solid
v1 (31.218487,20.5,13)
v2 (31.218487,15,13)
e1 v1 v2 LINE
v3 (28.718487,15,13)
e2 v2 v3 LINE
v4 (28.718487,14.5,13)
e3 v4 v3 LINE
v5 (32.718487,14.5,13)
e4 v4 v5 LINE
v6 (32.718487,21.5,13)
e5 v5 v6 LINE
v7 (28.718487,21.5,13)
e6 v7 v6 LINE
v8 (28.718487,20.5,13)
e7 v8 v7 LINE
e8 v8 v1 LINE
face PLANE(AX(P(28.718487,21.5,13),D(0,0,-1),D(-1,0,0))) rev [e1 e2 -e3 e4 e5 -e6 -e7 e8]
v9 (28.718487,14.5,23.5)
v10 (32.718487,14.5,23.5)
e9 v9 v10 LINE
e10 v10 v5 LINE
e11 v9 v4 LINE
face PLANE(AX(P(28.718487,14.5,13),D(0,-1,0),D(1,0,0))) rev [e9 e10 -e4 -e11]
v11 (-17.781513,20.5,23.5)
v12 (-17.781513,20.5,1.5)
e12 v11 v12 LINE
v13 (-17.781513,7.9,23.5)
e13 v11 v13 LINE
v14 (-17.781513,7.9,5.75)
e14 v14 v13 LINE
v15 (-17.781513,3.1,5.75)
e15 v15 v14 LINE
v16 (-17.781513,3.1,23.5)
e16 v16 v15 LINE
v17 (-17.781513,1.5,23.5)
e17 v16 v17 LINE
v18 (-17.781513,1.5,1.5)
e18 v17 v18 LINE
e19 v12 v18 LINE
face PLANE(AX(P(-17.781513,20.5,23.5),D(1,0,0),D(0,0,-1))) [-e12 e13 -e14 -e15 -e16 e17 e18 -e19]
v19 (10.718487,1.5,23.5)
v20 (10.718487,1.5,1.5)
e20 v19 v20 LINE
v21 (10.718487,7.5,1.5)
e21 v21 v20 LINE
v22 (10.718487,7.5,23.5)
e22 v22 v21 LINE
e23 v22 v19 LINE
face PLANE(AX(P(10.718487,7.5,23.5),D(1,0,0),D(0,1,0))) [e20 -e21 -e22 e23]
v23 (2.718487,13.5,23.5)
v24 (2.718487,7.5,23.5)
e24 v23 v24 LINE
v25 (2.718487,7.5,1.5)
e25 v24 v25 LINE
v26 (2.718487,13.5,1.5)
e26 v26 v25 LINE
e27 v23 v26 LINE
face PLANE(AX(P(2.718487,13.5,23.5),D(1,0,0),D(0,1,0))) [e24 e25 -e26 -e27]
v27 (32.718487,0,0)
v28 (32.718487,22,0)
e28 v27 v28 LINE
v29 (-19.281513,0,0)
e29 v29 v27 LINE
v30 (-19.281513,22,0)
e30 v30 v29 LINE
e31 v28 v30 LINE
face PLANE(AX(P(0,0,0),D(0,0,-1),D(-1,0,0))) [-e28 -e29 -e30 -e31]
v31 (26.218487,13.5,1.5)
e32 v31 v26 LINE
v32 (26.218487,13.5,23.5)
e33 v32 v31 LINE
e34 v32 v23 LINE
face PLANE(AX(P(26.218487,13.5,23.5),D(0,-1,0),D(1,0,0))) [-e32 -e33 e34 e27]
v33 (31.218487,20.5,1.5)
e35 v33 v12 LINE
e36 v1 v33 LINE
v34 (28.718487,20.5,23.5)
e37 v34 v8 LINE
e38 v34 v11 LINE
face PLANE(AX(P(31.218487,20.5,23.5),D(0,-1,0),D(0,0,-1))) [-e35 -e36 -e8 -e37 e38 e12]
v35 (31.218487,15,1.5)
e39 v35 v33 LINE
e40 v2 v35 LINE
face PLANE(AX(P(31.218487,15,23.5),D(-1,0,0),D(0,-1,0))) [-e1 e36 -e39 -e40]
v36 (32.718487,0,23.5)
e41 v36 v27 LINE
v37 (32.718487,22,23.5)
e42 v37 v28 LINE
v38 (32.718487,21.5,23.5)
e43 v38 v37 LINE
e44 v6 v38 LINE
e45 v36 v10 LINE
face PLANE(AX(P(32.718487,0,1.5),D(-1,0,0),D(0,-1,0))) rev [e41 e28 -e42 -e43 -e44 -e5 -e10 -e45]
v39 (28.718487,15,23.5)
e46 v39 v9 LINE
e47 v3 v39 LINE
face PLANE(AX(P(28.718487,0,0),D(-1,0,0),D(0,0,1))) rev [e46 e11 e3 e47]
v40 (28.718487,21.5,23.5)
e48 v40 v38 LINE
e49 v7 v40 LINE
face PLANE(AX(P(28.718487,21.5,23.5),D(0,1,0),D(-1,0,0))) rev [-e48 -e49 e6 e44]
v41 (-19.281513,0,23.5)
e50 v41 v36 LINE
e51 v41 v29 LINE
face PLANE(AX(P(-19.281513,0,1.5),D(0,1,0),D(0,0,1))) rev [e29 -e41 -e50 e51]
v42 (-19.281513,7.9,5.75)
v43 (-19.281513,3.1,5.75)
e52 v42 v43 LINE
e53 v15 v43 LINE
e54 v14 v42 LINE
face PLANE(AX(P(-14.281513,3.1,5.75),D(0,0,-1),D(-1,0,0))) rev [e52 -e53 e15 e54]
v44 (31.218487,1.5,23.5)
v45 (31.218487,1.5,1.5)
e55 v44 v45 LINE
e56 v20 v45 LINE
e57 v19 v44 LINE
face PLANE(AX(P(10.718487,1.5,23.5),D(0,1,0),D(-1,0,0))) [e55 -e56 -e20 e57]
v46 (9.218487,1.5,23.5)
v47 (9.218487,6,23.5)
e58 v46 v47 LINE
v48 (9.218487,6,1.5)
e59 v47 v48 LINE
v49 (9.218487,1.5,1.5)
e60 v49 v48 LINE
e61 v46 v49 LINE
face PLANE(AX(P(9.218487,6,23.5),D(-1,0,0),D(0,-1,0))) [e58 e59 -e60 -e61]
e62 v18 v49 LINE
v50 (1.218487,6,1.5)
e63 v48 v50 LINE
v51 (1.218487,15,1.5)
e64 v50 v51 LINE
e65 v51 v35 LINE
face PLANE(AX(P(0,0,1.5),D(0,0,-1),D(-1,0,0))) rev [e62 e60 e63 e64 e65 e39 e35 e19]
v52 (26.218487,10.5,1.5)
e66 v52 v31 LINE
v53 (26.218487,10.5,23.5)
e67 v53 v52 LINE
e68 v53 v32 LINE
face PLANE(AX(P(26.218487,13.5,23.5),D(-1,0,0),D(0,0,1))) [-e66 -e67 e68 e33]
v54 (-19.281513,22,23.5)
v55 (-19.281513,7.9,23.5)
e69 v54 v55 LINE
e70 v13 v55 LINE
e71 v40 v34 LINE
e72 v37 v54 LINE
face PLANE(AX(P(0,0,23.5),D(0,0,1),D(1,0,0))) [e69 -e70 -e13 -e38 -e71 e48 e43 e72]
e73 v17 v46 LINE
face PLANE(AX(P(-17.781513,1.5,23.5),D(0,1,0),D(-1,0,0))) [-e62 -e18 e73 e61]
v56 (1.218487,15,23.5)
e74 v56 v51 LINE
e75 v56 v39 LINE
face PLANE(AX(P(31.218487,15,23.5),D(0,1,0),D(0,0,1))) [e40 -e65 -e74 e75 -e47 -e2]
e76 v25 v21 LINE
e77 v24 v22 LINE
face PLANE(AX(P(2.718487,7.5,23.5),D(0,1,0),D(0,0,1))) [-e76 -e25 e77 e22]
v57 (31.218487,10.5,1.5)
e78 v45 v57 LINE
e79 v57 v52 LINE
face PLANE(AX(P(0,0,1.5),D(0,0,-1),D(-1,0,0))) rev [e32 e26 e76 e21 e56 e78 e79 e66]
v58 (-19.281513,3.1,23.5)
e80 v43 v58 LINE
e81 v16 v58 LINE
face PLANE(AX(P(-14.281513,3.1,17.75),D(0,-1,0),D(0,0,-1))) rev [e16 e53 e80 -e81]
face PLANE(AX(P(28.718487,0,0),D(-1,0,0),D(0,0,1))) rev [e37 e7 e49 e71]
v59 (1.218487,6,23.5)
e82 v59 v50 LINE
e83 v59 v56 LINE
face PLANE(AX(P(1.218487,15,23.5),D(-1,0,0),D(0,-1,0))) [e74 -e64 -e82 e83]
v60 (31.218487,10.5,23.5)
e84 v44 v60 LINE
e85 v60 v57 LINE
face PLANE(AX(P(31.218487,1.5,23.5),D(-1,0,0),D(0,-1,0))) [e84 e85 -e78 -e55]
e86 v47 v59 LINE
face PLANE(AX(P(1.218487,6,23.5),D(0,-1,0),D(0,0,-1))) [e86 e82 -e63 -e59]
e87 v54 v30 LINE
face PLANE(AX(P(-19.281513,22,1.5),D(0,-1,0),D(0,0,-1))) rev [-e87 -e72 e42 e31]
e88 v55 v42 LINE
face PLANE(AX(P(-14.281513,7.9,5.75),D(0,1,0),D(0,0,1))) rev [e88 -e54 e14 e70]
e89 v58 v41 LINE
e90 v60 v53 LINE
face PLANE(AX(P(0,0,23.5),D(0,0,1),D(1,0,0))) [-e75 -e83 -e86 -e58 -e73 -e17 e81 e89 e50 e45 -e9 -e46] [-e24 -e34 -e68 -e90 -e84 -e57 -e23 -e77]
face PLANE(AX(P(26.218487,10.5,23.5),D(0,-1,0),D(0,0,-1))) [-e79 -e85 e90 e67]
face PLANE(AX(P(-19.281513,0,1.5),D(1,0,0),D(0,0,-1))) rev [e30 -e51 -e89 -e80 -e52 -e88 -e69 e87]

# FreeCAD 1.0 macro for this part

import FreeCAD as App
import Part
import Sketcher


def add_polygon(sketch, points):
    """Adds a closed chain of lines whose ends are joined by coincident constraints."""
    first, n = sketch.GeometryCount, len(points)
    for a, b in zip(points, points[1:] + points[:1]):
        sketch.addGeometry(Part.LineSegment(App.Vector(*a, 0), App.Vector(*b, 0)), False)
    for i in range(n):
        sketch.addConstraint(Sketcher.Constraint("Coincident", first + i, 2, first + (i + 1) % n, 1))

doc = App.newDocument("Part")
body = doc.addObject("PartDesign::Body", "Body")

# Sketch on XY plane
sketch1 = body.newObject("Sketcher::SketchObject", "Sketch")
sketch1.AttachmentSupport = (doc.getObject("XY_Plane"), [""])
sketch1.MapMode = "FlatFace"
add_polygon(sketch1, [(-19, 22), (-19, 0), (33, 0), (33, 22)])  # lines 0-3
sketch1.addConstraint([
    Sketcher.Constraint("Vertical", 0),
    Sketcher.Constraint("Horizontal", 1),
    Sketcher.Constraint("Vertical", 2),
    Sketcher.Constraint("Horizontal", 3),
    Sketcher.Constraint("PointOnObject", 0, 2, -1),
    Sketcher.Constraint("DistanceX", 1, 1, 1, 2, 52.0),
    Sketcher.Constraint("DistanceY", 0, 2, 0, 1, 22.0),
    Sketcher.Constraint("DistanceX", 0, 2, -1, 1, 19.281513),
])
pad1 = body.newObject("PartDesign::Pad", "Pad")
pad1.Profile = sketch1
pad1.Length = 1.5

# Sketch on XY plane
sketch2 = body.newObject("Sketcher::SketchObject", "Sketch001")
sketch2.AttachmentSupport = (doc.getObject("XY_Plane"), [""])
sketch2.MapMode = "FlatFace"
sketch2.AttachmentOffset = App.Placement(App.Vector(0, 0, 1.5), App.Rotation())
add_polygon(sketch2, [(-19.3, 22), (-19.3, 0), (32.7, 0), (32.7, 22)])  # lines 0-3
add_polygon(sketch2, [(31.2, 10.5), (31.2, 1.5), (10.7, 1.5), (10.7, 7.5), (2.7, 7.5), (2.7, 13.5), (26.2, 13.5), (26.2, 10.5)])  # lines 4-11
add_polygon(sketch2, [(-17.8, 1.5), (-17.8, 20.5), (31.2, 20.5), (31.2, 15), (1.2, 15), (1.2, 6), (9.2, 6), (9.2, 1.5)])  # lines 12-19
sketch2.addConstraint([
    Sketcher.Constraint("Vertical", 0),
    Sketcher.Constraint("Horizontal", 1),
    Sketcher.Constraint("Vertical", 2),
    Sketcher.Constraint("Horizontal", 3),
    Sketcher.Constraint("Vertical", 4),
    Sketcher.Constraint("Horizontal", 5),
    Sketcher.Constraint("Vertical", 6),
    Sketcher.Constraint("Horizontal", 7),
    Sketcher.Constraint("Vertical", 8),
    Sketcher.Constraint("Horizontal", 9),
    Sketcher.Constraint("Vertical", 10),
    Sketcher.Constraint("Horizontal", 11),
    Sketcher.Constraint("Vertical", 12),
    Sketcher.Constraint("Horizontal", 13),
    Sketcher.Constraint("Vertical", 14),
    Sketcher.Constraint("Horizontal", 15),
    Sketcher.Constraint("Vertical", 16),
    Sketcher.Constraint("Horizontal", 17),
    Sketcher.Constraint("Vertical", 18),
    Sketcher.Constraint("Horizontal", 19),
    Sketcher.Constraint("PointOnObject", 0, 2, -1),
    Sketcher.Constraint("Horizontal", 5, 2, 18, 2),
    Sketcher.Constraint("Vertical", 11, 2, 13, 2),
    Sketcher.Constraint("Equal", 7, 17),
    Sketcher.Constraint("Equal", 6, 8),
    Sketcher.Constraint("Equal", 4, 16),
    Sketcher.Constraint("DistanceX", 1, 1, 1, 2, 52.0),
    Sketcher.Constraint("DistanceX", 7, 2, 7, 1, 8.0),
    Sketcher.Constraint("DistanceX", 11, 1, 11, 2, 5.0),
    Sketcher.Constraint("DistanceX", 13, 1, 13, 2, 49.0),
    Sketcher.Constraint("DistanceX", 15, 2, 15, 1, 30.0),
    Sketcher.Constraint("DistanceY", 0, 2, 0, 1, 22.0),
    Sketcher.Constraint("DistanceY", 4, 2, 4, 1, 9.0),
    Sketcher.Constraint("DistanceY", 6, 1, 6, 2, 6.0),
    Sketcher.Constraint("DistanceY", 12, 1, 12, 2, 19.0),
    Sketcher.Constraint("DistanceX", 5, 2, 5, 1, 20.5),
    Sketcher.Constraint("DistanceY", 14, 2, 14, 1, 5.5),
    Sketcher.Constraint("DistanceY", -1, 1, 14, 2, 15.0),
    Sketcher.Constraint("DistanceX", 5, 2, 1, 2, 22.0),
    Sketcher.Constraint("DistanceX", 0, 2, -1, 1, 19.281513),
])
pad2 = body.newObject("PartDesign::Pad", "Pad001")
pad2.Profile = sketch2
pad2.Length = 22

# Sketch on YZ plane
sketch3 = body.newObject("Sketcher::SketchObject", "Sketch002")
sketch3.AttachmentSupport = (doc.getObject("YZ_Plane"), [""])
sketch3.MapMode = "FlatFace"
sketch3.AttachmentOffset = App.Placement(App.Vector(0, 0, -19.281513), App.Rotation())
add_polygon(sketch3, [(3.1, 5.8), (3.1, 23.5), (7.9, 23.5), (7.9, 5.8)])  # lines 0-3
sketch3.addConstraint([
    Sketcher.Constraint("Vertical", 0),
    Sketcher.Constraint("Horizontal", 1),
    Sketcher.Constraint("Vertical", 2),
    Sketcher.Constraint("Horizontal", 3),
    Sketcher.Constraint("DistanceX", 1, 1, 1, 2, 4.8),
    Sketcher.Constraint("DistanceY", 0, 1, 0, 2, 17.75),
    Sketcher.Constraint("DistanceX", -1, 1, 0, 2, 3.1),
    Sketcher.Constraint("DistanceY", -1, 1, 0, 2, 23.5),
])
pocket1 = body.newObject("PartDesign::Pocket", "Pocket")
pocket1.Profile = sketch3
pocket1.Length = 5
pocket1.Reversed = True

# Sketch on YZ plane
sketch4 = body.newObject("Sketcher::SketchObject", "Sketch003")
sketch4.AttachmentSupport = (doc.getObject("YZ_Plane"), [""])
sketch4.MapMode = "FlatFace"
sketch4.AttachmentOffset = App.Placement(App.Vector(0, 0, 32.718487), App.Rotation())
add_polygon(sketch4, [(22, 24), (14, 24), (14, 13), (22, 13)])  # lines 0-3
sketch4.addConstraint([
    Sketcher.Constraint("Horizontal", 0),
    Sketcher.Constraint("Vertical", 1),
    Sketcher.Constraint("Horizontal", 2),
    Sketcher.Constraint("Vertical", 3),
    Sketcher.Constraint("DistanceX", 0, 2, 0, 1, 7.0),
    Sketcher.Constraint("DistanceY", 1, 2, 1, 1, 10.5),
    Sketcher.Constraint("DistanceY", -1, 1, 1, 2, 13.0),
    Sketcher.Constraint("DistanceX", -1, 1, 0, 2, 14.5),
])
pocket2 = body.newObject("PartDesign::Pocket", "Pocket001")
pocket2.Profile = sketch4
pocket2.Length = 4

doc.recompute()
